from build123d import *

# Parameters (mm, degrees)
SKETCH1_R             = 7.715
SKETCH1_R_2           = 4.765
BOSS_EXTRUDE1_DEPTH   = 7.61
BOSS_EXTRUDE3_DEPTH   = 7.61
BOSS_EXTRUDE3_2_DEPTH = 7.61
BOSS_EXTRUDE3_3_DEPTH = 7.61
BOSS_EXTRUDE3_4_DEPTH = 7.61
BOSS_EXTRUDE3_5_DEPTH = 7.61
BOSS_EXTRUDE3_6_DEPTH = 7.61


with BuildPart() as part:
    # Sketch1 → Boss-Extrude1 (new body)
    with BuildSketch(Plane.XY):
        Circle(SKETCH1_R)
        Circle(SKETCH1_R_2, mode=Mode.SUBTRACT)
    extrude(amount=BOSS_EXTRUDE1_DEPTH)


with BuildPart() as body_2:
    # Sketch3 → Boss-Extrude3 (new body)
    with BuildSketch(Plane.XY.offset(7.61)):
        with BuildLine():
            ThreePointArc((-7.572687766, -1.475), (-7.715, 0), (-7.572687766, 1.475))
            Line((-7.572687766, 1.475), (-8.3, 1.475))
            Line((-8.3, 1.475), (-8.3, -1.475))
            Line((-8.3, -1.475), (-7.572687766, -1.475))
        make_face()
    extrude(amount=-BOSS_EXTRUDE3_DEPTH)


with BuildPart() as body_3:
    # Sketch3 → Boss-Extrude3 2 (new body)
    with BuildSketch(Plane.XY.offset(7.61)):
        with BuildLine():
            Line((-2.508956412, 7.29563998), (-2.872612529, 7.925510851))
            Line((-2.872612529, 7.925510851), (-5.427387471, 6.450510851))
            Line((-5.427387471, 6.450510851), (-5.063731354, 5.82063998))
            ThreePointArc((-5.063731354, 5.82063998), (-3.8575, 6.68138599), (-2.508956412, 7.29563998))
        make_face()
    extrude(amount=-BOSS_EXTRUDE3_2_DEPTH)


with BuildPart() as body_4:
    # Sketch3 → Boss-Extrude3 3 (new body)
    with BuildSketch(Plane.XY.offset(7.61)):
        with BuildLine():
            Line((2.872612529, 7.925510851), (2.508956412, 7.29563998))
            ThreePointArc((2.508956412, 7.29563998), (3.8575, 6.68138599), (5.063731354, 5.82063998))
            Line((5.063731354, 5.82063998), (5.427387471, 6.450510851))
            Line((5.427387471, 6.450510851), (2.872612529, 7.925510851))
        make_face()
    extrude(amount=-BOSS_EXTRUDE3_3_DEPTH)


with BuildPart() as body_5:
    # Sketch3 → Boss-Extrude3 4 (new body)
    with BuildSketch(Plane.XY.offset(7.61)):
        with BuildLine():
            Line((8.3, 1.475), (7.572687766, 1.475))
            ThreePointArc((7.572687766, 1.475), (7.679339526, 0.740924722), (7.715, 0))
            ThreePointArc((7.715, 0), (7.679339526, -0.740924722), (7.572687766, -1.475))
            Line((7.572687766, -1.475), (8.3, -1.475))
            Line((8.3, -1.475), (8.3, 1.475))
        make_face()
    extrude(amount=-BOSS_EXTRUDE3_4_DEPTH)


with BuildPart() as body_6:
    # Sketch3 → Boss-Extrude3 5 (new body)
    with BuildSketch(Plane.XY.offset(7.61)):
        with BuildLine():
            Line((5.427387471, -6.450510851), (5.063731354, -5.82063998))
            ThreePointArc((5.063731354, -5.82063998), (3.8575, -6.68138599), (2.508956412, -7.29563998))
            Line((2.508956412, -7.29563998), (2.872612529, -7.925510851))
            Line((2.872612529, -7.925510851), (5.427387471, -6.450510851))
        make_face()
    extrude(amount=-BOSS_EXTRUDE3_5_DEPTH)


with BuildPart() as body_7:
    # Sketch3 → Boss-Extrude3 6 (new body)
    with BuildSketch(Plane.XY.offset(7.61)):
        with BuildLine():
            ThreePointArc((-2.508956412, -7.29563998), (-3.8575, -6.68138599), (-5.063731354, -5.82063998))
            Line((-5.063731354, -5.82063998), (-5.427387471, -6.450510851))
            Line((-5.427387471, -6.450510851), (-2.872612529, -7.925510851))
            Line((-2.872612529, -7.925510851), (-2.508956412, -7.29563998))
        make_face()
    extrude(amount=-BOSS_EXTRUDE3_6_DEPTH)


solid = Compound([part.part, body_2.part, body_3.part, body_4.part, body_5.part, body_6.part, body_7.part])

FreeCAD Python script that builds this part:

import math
import FreeCAD as App
import Part
import Sketcher
from FreeCAD import Vector
Q = App.Units.Quantity

doc = App.newDocument("Part")
body = doc.addObject("PartDesign::Body", "Body")

sketch1 = body.newObject("Sketcher::SketchObject", "Sketch")
sketch1.AttachmentSupport = (doc.getObject("XY_Plane"), [""])
sketch1.MapMode = "FlatFace"
sketch1.addGeometry([
    Part.Circle(Vector(0, 0, 0), Vector(0, 0, 1), 7.7),
    Part.Circle(Vector(0, 0, 0), Vector(0, 0, 1), 4.8),
], False)
sketch1.addConstraint([
    Sketcher.Constraint("Coincident", 0, 3, -1, 1),
    Sketcher.Constraint("Coincident", 1, 3, -1, 1),
    Sketcher.Constraint("Diameter", 0, 15.43),
    Sketcher.Constraint("Diameter", 1, 9.53),
])
pad1 = body.newObject("PartDesign::Pad", "Pad")
pad1.Profile = sketch1
pad1.Length = 7.61
body2 = doc.addObject("PartDesign::Body", "Body001")

sketch2 = body2.newObject("Sketcher::SketchObject", "Sketch001")
sketch2.AttachmentSupport = (doc.getObject("XY_Plane001"), [""])
sketch2.MapMode = "FlatFace"
sketch2.AttachmentOffset = App.Placement(Vector(0, 0, 7.61), App.Rotation())
sketch2.addGeometry([
    Part.ArcOfCircle(Part.Circle(Vector(0, 0, 0), Vector(0, 0, 1), 7.7), math.radians(169), math.radians(191)),
    Part.LineSegment(Vector(-7.6, 1.5, 0), Vector(-8.3, 1.5, 0)),
    Part.LineSegment(Vector(-8.3, 1.5, 0), Vector(-8.3, -1.5, 0)),
    Part.LineSegment(Vector(-8.3, -1.5, 0), Vector(-7.6, -1.5, 0)),
], False)
sketch2.addConstraint([
    Sketcher.Constraint("Coincident", 0, 1, 1, 1),
    Sketcher.Constraint("Coincident", 1, 2, 2, 1),
    Sketcher.Constraint("Coincident", 2, 2, 3, 1),
    Sketcher.Constraint("Coincident", 3, 2, 0, 2),
    Sketcher.Constraint("Horizontal", 1),
    Sketcher.Constraint("Vertical", 2),
    Sketcher.Constraint("Horizontal", 3),
    Sketcher.Constraint("Coincident", 0, 3, -1, 1),
    Sketcher.Constraint("Vertical", 0, 1, 3, 2),
    Sketcher.Constraint("Radius", 0, 7.715),
    Sketcher.Constraint("DistanceY", 2, 2, 2, 1, 2.95),
    Sketcher.Constraint("DistanceX", 1, 2, -1, 1, 8.3),
])
pad2 = body2.newObject("PartDesign::Pad", "Pad001")
pad2.Profile = sketch2
pad2.Length = 7.61
pad2.Reversed = True
body3 = doc.addObject("PartDesign::Body", "Body002")

sketch3 = body3.newObject("Sketcher::SketchObject", "Sketch002")
sketch3.AttachmentSupport = (doc.getObject("XY_Plane002"), [""])
sketch3.MapMode = "FlatFace"
sketch3.AttachmentOffset = App.Placement(Vector(0, 0, 7.61), App.Rotation())
sketch3.addGeometry([
    Part.LineSegment(Vector(-2.5, 7.3, 0), Vector(-2.9, 7.9, 0)),
    Part.LineSegment(Vector(-2.9, 7.9, 0), Vector(-5.4, 6.5, 0)),
    Part.LineSegment(Vector(-5.4, 6.5, 0), Vector(-5.1, 5.8, 0)),
    Part.ArcOfCircle(Part.Circle(Vector(0, 0, 0), Vector(0, 0, 1), 7.7), math.radians(109), math.radians(131)),
], False)
sketch3.addConstraint([
    Sketcher.Constraint("Coincident", 0, 2, 1, 1),
    Sketcher.Constraint("Coincident", 1, 2, 2, 1),
    Sketcher.Constraint("Coincident", 2, 2, 3, 2),
    Sketcher.Constraint("Coincident", 3, 1, 0, 1),
    Sketcher.Constraint("Coincident", 3, 3, -1, 1),
    Sketcher.Constraint("Perpendicular", 0, 1),
    Sketcher.Constraint("Perpendicular", 1, 2),
    Sketcher.Constraint("Equal", 0, 2),
    Sketcher.Constraint("Angle", 0, Q("120 deg")),
    Sketcher.Constraint("Radius", 3, 7.715),
    Sketcher.Constraint("Distance", 1, 2.95),
    Sketcher.Constraint("DistanceY", -1, 1, 0, 2, 7.925511),
])
pad3 = body3.newObject("PartDesign::Pad", "Pad002")
pad3.Profile = sketch3
pad3.Length = 7.61
pad3.Reversed = True
body4 = doc.addObject("PartDesign::Body", "Body003")

sketch4 = body4.newObject("Sketcher::SketchObject", "Sketch003")
sketch4.AttachmentSupport = (doc.getObject("XY_Plane003"), [""])
sketch4.MapMode = "FlatFace"
sketch4.AttachmentOffset = App.Placement(Vector(0, 0, 7.61), App.Rotation())
sketch4.addGeometry([
    Part.LineSegment(Vector(2.9, 7.9, 0), Vector(2.5, 7.3, 0)),
    Part.ArcOfCircle(Part.Circle(Vector(0, 0, 0), Vector(0, 0, 1), 7.7), math.radians(49), math.radians(71)),
    Part.LineSegment(Vector(5.1, 5.8, 0), Vector(5.4, 6.5, 0)),
    Part.LineSegment(Vector(5.4, 6.5, 0), Vector(2.9, 7.9, 0)),
], False)
sketch4.addConstraint([
    Sketcher.Constraint("Coincident", 0, 2, 1, 2),
    Sketcher.Constraint("Coincident", 1, 1, 2, 1),
    Sketcher.Constraint("Coincident", 2, 2, 3, 1),
    Sketcher.Constraint("Coincident", 3, 2, 0, 1),
    Sketcher.Constraint("Coincident", 1, 3, -1, 1),
    Sketcher.Constraint("Parallel", 0, 2),
    Sketcher.Constraint("Perpendicular", 2, 3),
    Sketcher.Constraint("Equal", 0, 2),
    Sketcher.Constraint("Angle", 0, Q("-120 deg")),
    Sketcher.Constraint("Radius", 1, 7.715),
    Sketcher.Constraint("Distance", 3, 2.95),
    Sketcher.Constraint("DistanceY", -1, 1, 2, 2, 6.450511),
])
pad4 = body4.newObject("PartDesign::Pad", "Pad003")
pad4.Profile = sketch4
pad4.Length = 7.61
pad4.Reversed = True
body5 = doc.addObject("PartDesign::Body", "Body004")

sketch5 = body5.newObject("Sketcher::SketchObject", "Sketch004")
sketch5.AttachmentSupport = (doc.getObject("XY_Plane004"), [""])
sketch5.MapMode = "FlatFace"
sketch5.AttachmentOffset = App.Placement(Vector(0, 0, 7.61), App.Rotation())
sketch5.addGeometry([
    Part.LineSegment(Vector(8.3, 1.5, 0), Vector(7.6, 1.5, 0)),
    Part.ArcOfCircle(Part.Circle(Vector(0, 0, 0), Vector(0, 0, 1), 7.7), math.radians(0), math.radians(11.02)),
    Part.ArcOfCircle(Part.Circle(Vector(0, 0, 0), Vector(0, 0, 1), 7.7), math.radians(-11.02), math.radians(0)),
    Part.LineSegment(Vector(7.6, -1.5, 0), Vector(8.3, -1.5, 0)),
    Part.LineSegment(Vector(8.3, -1.5, 0), Vector(8.3, 1.5, 0)),
], False)
sketch5.addConstraint([
    Sketcher.Constraint("Coincident", 0, 2, 1, 2),
    Sketcher.Constraint("Tangent", 1, 1, 2, 2),
    Sketcher.Constraint("Coincident", 2, 1, 3, 1),
    Sketcher.Constraint("Coincident", 3, 2, 4, 1),
    Sketcher.Constraint("Coincident", 4, 2, 0, 1),
    Sketcher.Constraint("Horizontal", 0),
    Sketcher.Constraint("Horizontal", 3),
    Sketcher.Constraint("Vertical", 4),
    Sketcher.Constraint("Coincident", 1, 3, -1, 1),
    Sketcher.Constraint("Equal", 1, 2),
    Sketcher.Constraint("PointOnObject", 1, 1, -1),
    Sketcher.Constraint("Vertical", 0, 2, 2, 1),
    Sketcher.Constraint("Radius", 1, 7.715),
    Sketcher.Constraint("DistanceY", 4, 1, 4, 2, 2.95),
    Sketcher.Constraint("DistanceX", -1, 1, 3, 2, 8.3),
])
pad5 = body5.newObject("PartDesign::Pad", "Pad004")
pad5.Profile = sketch5
pad5.Length = 7.61
pad5.Reversed = True
body6 = doc.addObject("PartDesign::Body", "Body005")

sketch6 = body6.newObject("Sketcher::SketchObject", "Sketch005")
sketch6.AttachmentSupport = (doc.getObject("XY_Plane005"), [""])
sketch6.MapMode = "FlatFace"
sketch6.AttachmentOffset = App.Placement(Vector(0, 0, 7.61), App.Rotation())
sketch6.addGeometry([
    Part.LineSegment(Vector(5.4, -6.5, 0), Vector(5.1, -5.8, 0)),
    Part.ArcOfCircle(Part.Circle(Vector(0, 0, 0), Vector(0, 0, 1), 7.7), math.radians(-71), math.radians(-49)),
    Part.LineSegment(Vector(2.5, -7.3, 0), Vector(2.9, -7.9, 0)),
    Part.LineSegment(Vector(2.9, -7.9, 0), Vector(5.4, -6.5, 0)),
], False)
sketch6.addConstraint([
    Sketcher.Constraint("Coincident", 0, 2, 1, 2),
    Sketcher.Constraint("Coincident", 1, 1, 2, 1),
    Sketcher.Constraint("Coincident", 2, 2, 3, 1),
    Sketcher.Constraint("Coincident", 3, 2, 0, 1),
    Sketcher.Constraint("Coincident", 1, 3, -1, 1),
    Sketcher.Constraint("Parallel", 0, 2),
    Sketcher.Constraint("Perpendicular", 2, 3),
    Sketcher.Constraint("Equal", 0, 2),
    Sketcher.Constraint("Angle", 0, Q("120 deg")),
    Sketcher.Constraint("Radius", 1, 7.715),
    Sketcher.Constraint("Distance", 3, 2.95),
    Sketcher.Constraint("DistanceY", 2, 2, -1, 1, 7.925511),
])
pad6 = body6.newObject("PartDesign::Pad", "Pad005")
pad6.Profile = sketch6
pad6.Length = 7.61
pad6.Reversed = True
body7 = doc.addObject("PartDesign::Body", "Body006")

sketch7 = body7.newObject("Sketcher::SketchObject", "Sketch006")
sketch7.AttachmentSupport = (doc.getObject("XY_Plane006"), [""])
sketch7.MapMode = "FlatFace"
sketch7.AttachmentOffset = App.Placement(Vector(0, 0, 7.61), App.Rotation())
sketch7.addGeometry([
    Part.ArcOfCircle(Part.Circle(Vector(0, 0, 0), Vector(0, 0, 1), 7.7), math.radians(-131), math.radians(-109)),
    Part.LineSegment(Vector(-5.1, -5.8, 0), Vector(-5.4, -6.5, 0)),
    Part.LineSegment(Vector(-5.4, -6.5, 0), Vector(-2.9, -7.9, 0)),
    Part.LineSegment(Vector(-2.9, -7.9, 0), Vector(-2.5, -7.3, 0)),
], False)
sketch7.addConstraint([
    Sketcher.Constraint("Coincident", 0, 1, 1, 1),
    Sketcher.Constraint("Coincident", 1, 2, 2, 1),
    Sketcher.Constraint("Coincident", 2, 2, 3, 1),
    Sketcher.Constraint("Coincident", 3, 2, 0, 2),
    Sketcher.Constraint("Coincident", 0, 3, -1, 1),
    Sketcher.Constraint("Perpendicular", 1, 2),
    Sketcher.Constraint("Perpendicular", 2, 3),
    Sketcher.Constraint("Equal", 1, 3),
    Sketcher.Constraint("Angle", 1, Q("-120 deg")),
    Sketcher.Constraint("Radius", 0, 7.715),
    Sketcher.Constraint("Distance", 2, 2.95),
    Sketcher.Constraint("DistanceY", 1, 2, -1, 1, 6.450511),
])
pad7 = body7.newObject("PartDesign::Pad", "Pad006")
pad7.Profile = sketch7
pad7.Length = 7.61
pad7.Reversed = True

doc.recompute()
